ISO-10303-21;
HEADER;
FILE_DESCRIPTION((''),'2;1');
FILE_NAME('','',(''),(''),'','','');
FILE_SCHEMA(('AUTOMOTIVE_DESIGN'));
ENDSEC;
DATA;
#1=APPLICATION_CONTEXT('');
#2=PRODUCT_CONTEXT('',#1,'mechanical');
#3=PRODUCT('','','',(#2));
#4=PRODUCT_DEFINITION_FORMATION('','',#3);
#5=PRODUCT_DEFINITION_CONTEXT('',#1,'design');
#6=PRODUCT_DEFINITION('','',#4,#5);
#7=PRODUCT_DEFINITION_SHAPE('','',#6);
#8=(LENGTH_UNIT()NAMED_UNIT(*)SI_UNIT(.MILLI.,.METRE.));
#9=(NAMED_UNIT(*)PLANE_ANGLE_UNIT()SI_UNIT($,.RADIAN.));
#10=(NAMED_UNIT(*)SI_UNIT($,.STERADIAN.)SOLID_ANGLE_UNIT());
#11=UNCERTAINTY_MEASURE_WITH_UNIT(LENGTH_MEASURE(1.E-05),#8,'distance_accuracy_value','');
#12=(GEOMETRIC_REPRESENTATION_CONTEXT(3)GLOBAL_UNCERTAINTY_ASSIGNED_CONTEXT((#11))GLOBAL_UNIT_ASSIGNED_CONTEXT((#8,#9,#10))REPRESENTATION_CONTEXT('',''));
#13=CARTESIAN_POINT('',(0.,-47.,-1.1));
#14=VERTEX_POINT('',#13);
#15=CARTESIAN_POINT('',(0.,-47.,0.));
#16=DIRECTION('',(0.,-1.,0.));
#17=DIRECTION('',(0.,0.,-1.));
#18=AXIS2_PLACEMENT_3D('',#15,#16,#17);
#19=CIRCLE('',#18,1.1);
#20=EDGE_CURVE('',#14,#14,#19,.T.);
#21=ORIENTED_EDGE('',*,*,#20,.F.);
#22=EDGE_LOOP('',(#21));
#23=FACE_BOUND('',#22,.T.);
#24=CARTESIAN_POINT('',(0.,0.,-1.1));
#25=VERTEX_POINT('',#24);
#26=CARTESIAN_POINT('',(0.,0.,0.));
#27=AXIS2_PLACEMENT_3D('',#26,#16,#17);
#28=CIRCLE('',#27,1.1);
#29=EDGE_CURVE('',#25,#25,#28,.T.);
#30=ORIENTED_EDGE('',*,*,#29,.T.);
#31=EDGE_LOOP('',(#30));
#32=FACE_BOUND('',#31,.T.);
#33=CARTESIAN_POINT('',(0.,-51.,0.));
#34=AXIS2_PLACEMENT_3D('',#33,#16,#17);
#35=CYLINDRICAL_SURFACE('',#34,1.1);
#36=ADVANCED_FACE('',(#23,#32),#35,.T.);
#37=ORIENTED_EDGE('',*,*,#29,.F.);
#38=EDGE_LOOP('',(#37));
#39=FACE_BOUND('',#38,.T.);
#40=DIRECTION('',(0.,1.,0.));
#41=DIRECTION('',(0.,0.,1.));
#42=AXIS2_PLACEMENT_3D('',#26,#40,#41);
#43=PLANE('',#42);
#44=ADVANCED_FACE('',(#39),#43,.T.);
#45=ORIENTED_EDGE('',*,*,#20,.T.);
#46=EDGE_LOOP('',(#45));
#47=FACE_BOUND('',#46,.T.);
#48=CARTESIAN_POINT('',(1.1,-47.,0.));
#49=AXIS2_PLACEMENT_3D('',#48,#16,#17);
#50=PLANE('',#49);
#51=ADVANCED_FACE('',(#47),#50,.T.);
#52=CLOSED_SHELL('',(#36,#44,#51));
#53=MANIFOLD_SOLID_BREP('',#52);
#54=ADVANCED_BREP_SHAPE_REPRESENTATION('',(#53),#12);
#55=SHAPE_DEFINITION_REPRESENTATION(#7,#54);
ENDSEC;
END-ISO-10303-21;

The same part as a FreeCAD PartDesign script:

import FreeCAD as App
import Part
import Sketcher
from FreeCAD import Vector

doc = App.newDocument("Part")
params = doc.addObject("Spreadsheet::Sheet", "Params")
for row, (alias, value) in enumerate([
    ("sketch1_height", "47 mm"),
    ("sketch1_width", "1.1 mm"),
    ("revolution_angle", "360 deg"),
], start=1):
    params.set(f"A{row}", alias)
    params.set(f"B{row}", "=" + value)
    params.setAlias(f"B{row}", alias)

body = doc.addObject("PartDesign::Body", "Body")

sketch1 = body.newObject("Sketcher::SketchObject", "Sketch")
sketch1.AttachmentSupport = (doc.getObject("XY_Plane"), [""])
sketch1.MapMode = "FlatFace"
sketch1.addGeometry([
    Part.LineSegment(Vector(0, 0, 0), Vector(0, -47, 0)),
    Part.LineSegment(Vector(0, -47, 0), Vector(1.1, -47, 0)),
    Part.LineSegment(Vector(1.1, -47, 0), Vector(1.1, 0, 0)),
    Part.LineSegment(Vector(1.1, 0, 0), Vector(0, 0, 0)),
], False)
sketch1.addConstraint([
    Sketcher.Constraint("Coincident", 0, 2, 1, 1),
    Sketcher.Constraint("Coincident", 1, 2, 2, 1),
    Sketcher.Constraint("Coincident", 2, 2, 3, 1),
    Sketcher.Constraint("Coincident", 3, 2, 0, 1),
    Sketcher.Constraint("Vertical", 0),
    Sketcher.Constraint("Horizontal", 1),
    Sketcher.Constraint("Vertical", 2),
    Sketcher.Constraint("Horizontal", 3),
    Sketcher.Constraint("Coincident", 3, 2, -1, 1),
    Sketcher.Constraint("DistanceY", 0, 2, 0, 1, 47.0),
    Sketcher.Constraint("DistanceX", 1, 1, 1, 2, 1.1),
])
sketch1.setExpression("Constraints[9]", "Params.sketch1_height")
sketch1.setExpression("Constraints[10]", "Params.sketch1_width")
revolution = body.newObject("PartDesign::Revolution", "Revolution")
revolution.Profile = sketch1
revolution.ReferenceAxis = (sketch1, ["V_Axis"])
revolution.setExpression("Angle", "Params.revolution_angle")

doc.recompute()
